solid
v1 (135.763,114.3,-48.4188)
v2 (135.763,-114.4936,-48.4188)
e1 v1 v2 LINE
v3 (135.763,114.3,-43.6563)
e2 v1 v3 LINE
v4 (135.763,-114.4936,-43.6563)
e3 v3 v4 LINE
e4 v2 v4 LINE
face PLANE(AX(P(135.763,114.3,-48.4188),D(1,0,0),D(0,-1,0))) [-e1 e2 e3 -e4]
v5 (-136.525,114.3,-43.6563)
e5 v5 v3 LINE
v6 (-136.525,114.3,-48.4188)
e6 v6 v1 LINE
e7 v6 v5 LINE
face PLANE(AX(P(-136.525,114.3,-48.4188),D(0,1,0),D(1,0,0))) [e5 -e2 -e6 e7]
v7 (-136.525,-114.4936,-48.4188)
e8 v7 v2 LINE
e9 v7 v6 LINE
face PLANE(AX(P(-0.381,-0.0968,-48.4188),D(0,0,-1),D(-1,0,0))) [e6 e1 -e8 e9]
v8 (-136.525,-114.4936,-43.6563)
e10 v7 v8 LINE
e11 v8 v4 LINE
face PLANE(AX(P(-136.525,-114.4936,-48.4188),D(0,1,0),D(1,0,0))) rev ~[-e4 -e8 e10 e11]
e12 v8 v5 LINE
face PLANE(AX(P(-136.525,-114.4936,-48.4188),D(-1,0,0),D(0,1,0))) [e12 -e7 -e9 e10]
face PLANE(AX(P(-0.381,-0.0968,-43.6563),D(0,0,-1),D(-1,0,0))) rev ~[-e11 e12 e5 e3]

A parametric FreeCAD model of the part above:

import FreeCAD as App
import Part
import Sketcher
Q = App.Units.Quantity


def add_polygon(sketch, points):
    """Adds a closed chain of lines whose ends are joined by coincident constraints."""
    first, n = sketch.GeometryCount, len(points)
    for a, b in zip(points, points[1:] + points[:1]):
        sketch.addGeometry(Part.LineSegment(App.Vector(*a, 0), App.Vector(*b, 0)), False)
    for i in range(n):
        sketch.addConstraint(Sketcher.Constraint("Coincident", first + i, 2, first + (i + 1) % n, 1))

doc = App.newDocument("Part")
body = doc.addObject("PartDesign::Body", "Body")

sketch1 = body.newObject("Sketcher::SketchObject", "Sketch")
sketch1.AttachmentSupport = (doc.getObject("XY_Plane"), [""])
sketch1.MapMode = "FlatFace"
sketch1.AttachmentOffset = App.Placement(App.Vector(0, 0, -1.906252 * 25.4), App.Rotation())
add_polygon(sketch1, [(-137, -114), (-137, 114), (136, 114), (136, -114)])
sketch1.addConstraint([
    Sketcher.Constraint("Vertical", 0),
    Sketcher.Constraint("Horizontal", 1),
    Sketcher.Constraint("Vertical", 2),
    Sketcher.Constraint("Horizontal", 3),
    Sketcher.Constraint("DistanceX", 1, 1, 1, 2, Q("10.72 in")),
    Sketcher.Constraint("DistanceY", -1, 1, 0, 2, Q("4.5 in")),
    Sketcher.Constraint("DistanceX", 0, 2, -1, 1, Q("5.375 in")),
    Sketcher.Constraint("DistanceY", 0, 1, 0, 2, Q("228.7936 mm")),
])
pad1 = body.newObject("PartDesign::Pad", "Pad")
pad1.Profile = sketch1
pad1.Length = Q("0.1875 in")

doc.recompute()
